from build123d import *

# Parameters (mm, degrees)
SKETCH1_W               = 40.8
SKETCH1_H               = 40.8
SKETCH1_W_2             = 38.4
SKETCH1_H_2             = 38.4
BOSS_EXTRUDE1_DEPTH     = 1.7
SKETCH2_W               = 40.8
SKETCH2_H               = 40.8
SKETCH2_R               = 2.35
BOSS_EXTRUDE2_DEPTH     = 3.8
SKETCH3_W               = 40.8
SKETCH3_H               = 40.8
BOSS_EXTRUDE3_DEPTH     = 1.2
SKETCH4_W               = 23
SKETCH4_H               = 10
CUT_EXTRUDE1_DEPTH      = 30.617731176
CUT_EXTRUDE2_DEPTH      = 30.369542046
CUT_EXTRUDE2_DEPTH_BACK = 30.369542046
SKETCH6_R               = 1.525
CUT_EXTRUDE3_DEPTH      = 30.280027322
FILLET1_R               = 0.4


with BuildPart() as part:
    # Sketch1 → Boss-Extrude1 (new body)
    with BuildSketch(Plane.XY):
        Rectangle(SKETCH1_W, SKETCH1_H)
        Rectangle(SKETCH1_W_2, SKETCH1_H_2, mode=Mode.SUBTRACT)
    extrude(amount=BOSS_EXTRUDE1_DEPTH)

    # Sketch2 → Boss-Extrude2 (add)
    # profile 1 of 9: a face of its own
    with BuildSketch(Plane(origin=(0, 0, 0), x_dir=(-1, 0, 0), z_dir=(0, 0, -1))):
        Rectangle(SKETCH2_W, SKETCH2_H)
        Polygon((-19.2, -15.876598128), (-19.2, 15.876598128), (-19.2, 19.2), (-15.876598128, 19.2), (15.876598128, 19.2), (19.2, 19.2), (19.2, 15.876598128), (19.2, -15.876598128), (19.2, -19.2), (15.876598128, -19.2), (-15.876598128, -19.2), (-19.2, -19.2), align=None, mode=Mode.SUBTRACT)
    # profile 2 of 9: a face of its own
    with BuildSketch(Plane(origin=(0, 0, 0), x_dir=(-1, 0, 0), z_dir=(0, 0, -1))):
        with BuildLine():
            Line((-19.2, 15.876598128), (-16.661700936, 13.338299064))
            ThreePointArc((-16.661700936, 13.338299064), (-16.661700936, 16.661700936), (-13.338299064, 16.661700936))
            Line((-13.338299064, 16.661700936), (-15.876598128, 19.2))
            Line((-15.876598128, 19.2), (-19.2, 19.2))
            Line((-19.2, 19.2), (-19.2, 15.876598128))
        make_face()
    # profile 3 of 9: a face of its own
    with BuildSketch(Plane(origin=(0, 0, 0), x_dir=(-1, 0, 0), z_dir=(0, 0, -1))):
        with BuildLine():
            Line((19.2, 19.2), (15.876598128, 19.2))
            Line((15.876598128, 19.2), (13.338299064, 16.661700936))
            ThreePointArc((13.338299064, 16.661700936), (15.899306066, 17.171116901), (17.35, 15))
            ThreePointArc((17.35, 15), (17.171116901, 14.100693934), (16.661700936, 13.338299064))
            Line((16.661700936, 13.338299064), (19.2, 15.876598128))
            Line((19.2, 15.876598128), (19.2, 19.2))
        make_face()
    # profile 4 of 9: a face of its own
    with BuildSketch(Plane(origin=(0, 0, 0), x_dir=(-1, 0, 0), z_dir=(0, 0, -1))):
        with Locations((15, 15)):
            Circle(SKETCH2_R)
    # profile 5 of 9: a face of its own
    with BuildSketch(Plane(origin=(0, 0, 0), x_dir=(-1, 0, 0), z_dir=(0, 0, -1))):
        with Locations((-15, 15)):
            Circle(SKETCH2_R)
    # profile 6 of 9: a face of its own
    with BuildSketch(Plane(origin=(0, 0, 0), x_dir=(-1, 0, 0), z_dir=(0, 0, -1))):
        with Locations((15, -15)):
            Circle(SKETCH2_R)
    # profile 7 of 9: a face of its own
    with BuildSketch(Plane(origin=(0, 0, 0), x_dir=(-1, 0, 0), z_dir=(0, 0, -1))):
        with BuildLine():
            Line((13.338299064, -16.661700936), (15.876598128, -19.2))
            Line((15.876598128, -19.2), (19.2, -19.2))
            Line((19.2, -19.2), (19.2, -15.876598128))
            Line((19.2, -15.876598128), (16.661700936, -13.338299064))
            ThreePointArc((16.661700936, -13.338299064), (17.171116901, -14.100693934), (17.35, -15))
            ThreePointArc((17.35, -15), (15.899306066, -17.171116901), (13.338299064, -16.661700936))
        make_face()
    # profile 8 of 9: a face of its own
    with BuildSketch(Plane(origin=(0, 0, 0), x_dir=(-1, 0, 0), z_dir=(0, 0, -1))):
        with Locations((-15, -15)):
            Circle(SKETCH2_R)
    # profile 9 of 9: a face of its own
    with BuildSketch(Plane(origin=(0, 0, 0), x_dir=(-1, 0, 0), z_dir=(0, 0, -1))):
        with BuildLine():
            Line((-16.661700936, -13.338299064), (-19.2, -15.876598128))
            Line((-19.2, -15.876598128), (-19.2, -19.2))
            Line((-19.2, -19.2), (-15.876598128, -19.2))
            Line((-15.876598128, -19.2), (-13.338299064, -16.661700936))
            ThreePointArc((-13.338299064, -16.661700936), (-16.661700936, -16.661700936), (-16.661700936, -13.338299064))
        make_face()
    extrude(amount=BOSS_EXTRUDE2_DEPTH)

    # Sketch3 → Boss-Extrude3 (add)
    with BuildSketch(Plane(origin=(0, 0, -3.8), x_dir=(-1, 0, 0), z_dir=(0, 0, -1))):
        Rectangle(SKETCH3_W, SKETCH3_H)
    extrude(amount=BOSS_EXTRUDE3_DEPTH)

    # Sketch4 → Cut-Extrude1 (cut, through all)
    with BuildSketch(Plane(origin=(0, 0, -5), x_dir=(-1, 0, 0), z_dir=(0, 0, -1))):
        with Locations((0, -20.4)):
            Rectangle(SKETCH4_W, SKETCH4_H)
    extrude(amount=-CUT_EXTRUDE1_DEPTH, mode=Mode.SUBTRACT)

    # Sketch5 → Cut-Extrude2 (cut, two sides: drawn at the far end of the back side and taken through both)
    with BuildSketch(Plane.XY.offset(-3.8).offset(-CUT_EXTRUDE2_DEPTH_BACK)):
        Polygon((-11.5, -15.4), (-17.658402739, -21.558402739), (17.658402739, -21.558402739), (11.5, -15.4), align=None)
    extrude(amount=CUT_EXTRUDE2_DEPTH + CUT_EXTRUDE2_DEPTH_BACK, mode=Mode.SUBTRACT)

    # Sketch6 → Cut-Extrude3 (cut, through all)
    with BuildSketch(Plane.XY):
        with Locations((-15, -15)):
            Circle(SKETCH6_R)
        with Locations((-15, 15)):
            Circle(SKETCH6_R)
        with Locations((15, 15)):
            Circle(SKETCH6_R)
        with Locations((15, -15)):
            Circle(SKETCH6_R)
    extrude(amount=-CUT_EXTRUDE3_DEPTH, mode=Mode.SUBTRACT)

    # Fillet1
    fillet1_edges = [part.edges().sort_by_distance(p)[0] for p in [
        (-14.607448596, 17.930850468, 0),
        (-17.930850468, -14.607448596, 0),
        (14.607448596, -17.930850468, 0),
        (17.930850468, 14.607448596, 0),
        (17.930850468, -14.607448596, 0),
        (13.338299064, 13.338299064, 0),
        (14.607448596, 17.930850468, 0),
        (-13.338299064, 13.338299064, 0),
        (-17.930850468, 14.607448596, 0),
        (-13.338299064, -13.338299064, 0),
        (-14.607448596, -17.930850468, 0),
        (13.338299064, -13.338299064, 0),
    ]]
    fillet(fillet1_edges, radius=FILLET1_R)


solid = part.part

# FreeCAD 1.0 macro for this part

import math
import FreeCAD as App
import Part
import Sketcher
from FreeCAD import Vector
Q = App.Units.Quantity


def edges_at(feature, points):
    """Names of the edges that pass closest to the given points."""
    edges = feature.Shape.Edges
    near = lambda p: min(range(len(edges)), key=lambda i: edges[i].distToShape(Part.Vertex(*p))[0])
    return sorted({f"Edge{near(p) + 1}" for p in points})


def add_polygon(sketch, points):
    """Adds a closed chain of lines whose ends are joined by coincident constraints."""
    first, n = sketch.GeometryCount, len(points)
    for a, b in zip(points, points[1:] + points[:1]):
        sketch.addGeometry(Part.LineSegment(App.Vector(*a, 0), App.Vector(*b, 0)), False)
    for i in range(n):
        sketch.addConstraint(Sketcher.Constraint("Coincident", first + i, 2, first + (i + 1) % n, 1))

doc = App.newDocument("Part")
body = doc.addObject("PartDesign::Body", "Body")

# Sketch on XY plane
sketch1 = doc.addObject("Sketcher::SketchObject", "Sketch")
body.addObject(sketch1)
sketch1.AttachmentSupport = (doc.XY_Plane, [""])
sketch1.MapMode = "FlatFace"
add_polygon(sketch1, [(-20.4, 20.4), (-20.4, -20.4), (20.4, -20.4), (20.4, 20.4)])  # lines 0-3
add_polygon(sketch1, [(19.2, -19.2), (-19.2, -19.2), (-19.2, 19.2), (19.2, 19.2)])  # lines 4-7
sketch1.addConstraint(Sketcher.Constraint("Vertical", 0))
sketch1.addConstraint(Sketcher.Constraint("Horizontal", 1))
sketch1.addConstraint(Sketcher.Constraint("Vertical", 2))
sketch1.addConstraint(Sketcher.Constraint("Horizontal", 3))
sketch1.addConstraint(Sketcher.Constraint("Horizontal", 4))
sketch1.addConstraint(Sketcher.Constraint("Vertical", 5))
sketch1.addConstraint(Sketcher.Constraint("Horizontal", 6))
sketch1.addConstraint(Sketcher.Constraint("Vertical", 7))
sketch1.addConstraint(Sketcher.Constraint("Symmetric", 0, 2, 2, 2, -1, 1))
sketch1.addConstraint(Sketcher.Constraint("Symmetric", 4, 2, 6, 2, -1, 1))
sketch1.addConstraint(Sketcher.Constraint("Equal", 3, 0))
sketch1.addConstraint(Sketcher.Constraint("Equal", 6, 5))
sketch1.addConstraint(Sketcher.Constraint("DistanceX", 1, 1, 1, 2, Q("40.8 mm")))
sketch1.addConstraint(Sketcher.Constraint("DistanceX", 4, 2, 4, 1, Q("38.4 mm")))
pad1 = doc.addObject("PartDesign::Pad", "Pad")
body.addObject(pad1)
pad1.Profile = sketch1
pad1.Length = 1.7

# Sketch on XY plane
sketch2 = doc.addObject("Sketcher::SketchObject", "Sketch001")
body.addObject(sketch2)
sketch2.AttachmentSupport = (doc.XY_Plane, [""])
sketch2.MapMode = "FlatFace"
add_polygon(sketch2, [(20.4, 20.4), (20.4, -20.4), (-20.4, -20.4), (-20.4, 20.4)])  # lines 0-3
sketch2.addGeometry(Part.LineSegment(Vector(19.2, -15.876598, 0), Vector(19.2, 15.876598, 0)), False)  # 4
sketch2.addGeometry(Part.LineSegment(Vector(19.2, 15.876598, 0), Vector(16.661701, 13.338299, 0)), False)  # 5
sketch2.addGeometry(Part.ArcOfCircle(Part.Circle(Vector(15, 15, 0), Vector(0, 0, 1), 2.35), math.radians(135), math.radians(315)), False)  # 6
sketch2.addGeometry(Part.LineSegment(Vector(13.338299, 16.661701, 0), Vector(15.876598, 19.2, 0)), False)  # 7
sketch2.addGeometry(Part.LineSegment(Vector(15.876598, 19.2, 0), Vector(-15.876598, 19.2, 0)), False)  # 8
sketch2.addGeometry(Part.LineSegment(Vector(-15.876598, 19.2, 0), Vector(-13.338299, 16.661701, 0)), False)  # 9
sketch2.addGeometry(Part.ArcOfCircle(Part.Circle(Vector(-15, 15, 0), Vector(0, 0, 1), 2.35), math.radians(-135), math.radians(45)), False)  # 10
sketch2.addGeometry(Part.LineSegment(Vector(-16.661701, 13.338299, 0), Vector(-19.2, 15.876598, 0)), False)  # 11
sketch2.addGeometry(Part.LineSegment(Vector(-19.2, 15.876598, 0), Vector(-19.2, -15.876598, 0)), False)  # 12
sketch2.addGeometry(Part.LineSegment(Vector(-19.2, -15.876598, 0), Vector(-16.661701, -13.338299, 0)), False)  # 13
sketch2.addGeometry(Part.ArcOfCircle(Part.Circle(Vector(-15, -15, 0), Vector(0, 0, 1), 2.35), math.radians(-45), math.radians(135)), False)  # 14
sketch2.addGeometry(Part.LineSegment(Vector(-13.338299, -16.661701, 0), Vector(-15.876598, -19.2, 0)), False)  # 15
sketch2.addGeometry(Part.LineSegment(Vector(-15.876598, -19.2, 0), Vector(15.876598, -19.2, 0)), False)  # 16
sketch2.addGeometry(Part.LineSegment(Vector(15.876598, -19.2, 0), Vector(13.338299, -16.661701, 0)), False)  # 17
sketch2.addGeometry(Part.ArcOfCircle(Part.Circle(Vector(15, -15, 0), Vector(0, 0, 1), 2.35), math.radians(45), math.radians(225)), False)  # 18
sketch2.addGeometry(Part.LineSegment(Vector(16.661701, -13.338299, 0), Vector(19.2, -15.876598, 0)), False)  # 19
sketch2.addConstraint(Sketcher.Constraint("Coincident", 4, 2, 5, 1))
sketch2.addConstraint(Sketcher.Constraint("Tangent", 5, 2, 6, 2))
sketch2.addConstraint(Sketcher.Constraint("Tangent", 6, 1, 7, 1))
sketch2.addConstraint(Sketcher.Constraint("Coincident", 7, 2, 8, 1))
sketch2.addConstraint(Sketcher.Constraint("Coincident", 8, 2, 9, 1))
sketch2.addConstraint(Sketcher.Constraint("Tangent", 9, 2, 10, 2))
sketch2.addConstraint(Sketcher.Constraint("Tangent", 10, 1, 11, 1))
sketch2.addConstraint(Sketcher.Constraint("Coincident", 11, 2, 12, 1))
sketch2.addConstraint(Sketcher.Constraint("Coincident", 12, 2, 13, 1))
sketch2.addConstraint(Sketcher.Constraint("Tangent", 13, 2, 14, 2))
sketch2.addConstraint(Sketcher.Constraint("Tangent", 14, 1, 15, 1))
sketch2.addConstraint(Sketcher.Constraint("Coincident", 15, 2, 16, 1))
sketch2.addConstraint(Sketcher.Constraint("Coincident", 16, 2, 17, 1))
sketch2.addConstraint(Sketcher.Constraint("Tangent", 17, 2, 18, 2))
sketch2.addConstraint(Sketcher.Constraint("Tangent", 18, 1, 19, 1))
sketch2.addConstraint(Sketcher.Constraint("Coincident", 19, 2, 4, 1))
sketch2.addConstraint(Sketcher.Constraint("Vertical", 0))
sketch2.addConstraint(Sketcher.Constraint("Horizontal", 1))
sketch2.addConstraint(Sketcher.Constraint("Vertical", 2))
sketch2.addConstraint(Sketcher.Constraint("Horizontal", 3))
sketch2.addConstraint(Sketcher.Constraint("Vertical", 4))
sketch2.addConstraint(Sketcher.Constraint("Horizontal", 8))
sketch2.addConstraint(Sketcher.Constraint("Vertical", 12))
sketch2.addConstraint(Sketcher.Constraint("Horizontal", 16))
sketch2.addConstraint(Sketcher.Constraint("Equal", 6, 10))
sketch2.addConstraint(Sketcher.Constraint("Equal", 10, 14))
sketch2.addConstraint(Sketcher.Constraint("Equal", 14, 18))
sketch2.addConstraint(Sketcher.Constraint("Symmetric", 6, 3, 14, 3, -1, 1))
sketch2.addConstraint(Sketcher.Constraint("Symmetric", 10, 3, 18, 3, -1, 1))
sketch2.addConstraint(Sketcher.Constraint("Symmetric", 0, 2, 2, 2, -1, 1))
sketch2.addConstraint(Sketcher.Constraint("Symmetric", 4, 2, 12, 2, -1, 1))
sketch2.addConstraint(Sketcher.Constraint("Symmetric", 7, 2, 15, 2, -1, 1))
sketch2.addConstraint(Sketcher.Constraint("Symmetric", 6, 3, 10, 3, -2))
sketch2.addConstraint(Sketcher.Constraint("Parallel", 5, 7))
sketch2.addConstraint(Sketcher.Constraint("Perpendicular", 7, 9))
sketch2.addConstraint(Sketcher.Constraint("Parallel", 9, 11))
sketch2.addConstraint(Sketcher.Constraint("Perpendicular", 15, 17))
sketch2.addConstraint(Sketcher.Constraint("Parallel", 17, 19))
sketch2.addConstraint(Sketcher.Constraint("Horizontal", 6, 1, 9, 2))
sketch2.addConstraint(Sketcher.Constraint("Equal", 3, 0))
sketch2.addConstraint(Sketcher.Constraint("Equal", 16, 4))
sketch2.addConstraint(Sketcher.Constraint("Equal", 5, 7))
sketch2.addConstraint(Sketcher.Constraint("Radius", 6, Q("2.35 mm")))
sketch2.addConstraint(Sketcher.Constraint("DistanceX", 1, 2, 1, 1, Q("40.8 mm")))
sketch2.addConstraint(Sketcher.Constraint("DistanceX", -1, 1, 6, 3, Q("15 mm")))
sketch2.addConstraint(Sketcher.Constraint("DistanceX", -1, 1, 4, 2, Q("19.2 mm")))
pad2 = doc.addObject("PartDesign::Pad", "Pad001")
body.addObject(pad2)
pad2.Profile = sketch2
pad2.Length = 3.8
pad2.Reversed = True

# Sketch on XY plane
sketch3 = doc.addObject("Sketcher::SketchObject", "Sketch002")
body.addObject(sketch3)
sketch3.AttachmentSupport = (doc.XY_Plane, [""])
sketch3.MapMode = "FlatFace"
sketch3.AttachmentOffset = App.Placement(Vector(0, 0, -3.8), App.Rotation())
add_polygon(sketch3, [(20.4, 20.4), (20.4, -20.4), (-20.4, -20.4), (-20.4, 20.4)])  # lines 0-3
sketch3.addConstraint(Sketcher.Constraint("Vertical", 0))
sketch3.addConstraint(Sketcher.Constraint("Horizontal", 1))
sketch3.addConstraint(Sketcher.Constraint("Vertical", 2))
sketch3.addConstraint(Sketcher.Constraint("Horizontal", 3))
sketch3.addConstraint(Sketcher.Constraint("Symmetric", 0, 2, 2, 2, -1, 1))
sketch3.addConstraint(Sketcher.Constraint("Equal", 3, 0))
sketch3.addConstraint(Sketcher.Constraint("DistanceX", 1, 2, 1, 1, Q("40.8 mm")))
pad3 = doc.addObject("PartDesign::Pad", "Pad002")
body.addObject(pad3)
pad3.Profile = sketch3
pad3.Length = 1.2
pad3.Reversed = True

# Sketch on XY plane
sketch4 = doc.addObject("Sketcher::SketchObject", "Sketch003")
body.addObject(sketch4)
sketch4.AttachmentSupport = (doc.XY_Plane, [""])
sketch4.MapMode = "FlatFace"
sketch4.AttachmentOffset = App.Placement(Vector(0, 0, -5), App.Rotation())
add_polygon(sketch4, [(11.5, -15.4), (11.5, -25.4), (-11.5, -25.4), (-11.5, -15.4)])  # lines 0-3
sketch4.addConstraint(Sketcher.Constraint("Vertical", 0))
sketch4.addConstraint(Sketcher.Constraint("Horizontal", 1))
sketch4.addConstraint(Sketcher.Constraint("Vertical", 2))
sketch4.addConstraint(Sketcher.Constraint("Horizontal", 3))
sketch4.addConstraint(Sketcher.Constraint("DistanceX", 1, 2, 1, 1, Q("23 mm")))
sketch4.addConstraint(Sketcher.Constraint("DistanceY", 0, 2, 0, 1, Q("10 mm")))
sketch4.addConstraint(Sketcher.Constraint("DistanceX", -1, 1, 0, 2, Q("11.5 mm")))
sketch4.addConstraint(Sketcher.Constraint("DistanceY", 0, 2, -1, 1, Q("25.4 mm")))
pocket1 = doc.addObject("PartDesign::Pocket", "Pocket")
body.addObject(pocket1)
pocket1.Profile = sketch4
pocket1.Type = "ThroughAll"
pocket1.Reversed = True

# Sketch on XY plane
sketch5 = doc.addObject("Sketcher::SketchObject", "Sketch004")
body.addObject(sketch5)
sketch5.AttachmentSupport = (doc.XY_Plane, [""])
sketch5.MapMode = "FlatFace"
sketch5.AttachmentOffset = App.Placement(Vector(0, 0, -3.8), App.Rotation())
add_polygon(sketch5, [(-11.5, -15.4), (-17.658403, -21.558403), (17.658403, -21.558403), (11.5, -15.4)])  # lines 0-3
sketch5.addConstraint(Sketcher.Constraint("Horizontal", 1))
sketch5.addConstraint(Sketcher.Constraint("Horizontal", 3))
sketch5.addConstraint(Sketcher.Constraint("Perpendicular", 0, 2))
sketch5.addConstraint(Sketcher.Constraint("Equal", 0, 2))
sketch5.addConstraint(Sketcher.Constraint("DistanceX", 3, 2, 3, 1, Q("23 mm")))
sketch5.addConstraint(Sketcher.Constraint("DistanceX", -1, 1, 2, 2, Q("11.5 mm")))
sketch5.addConstraint(Sketcher.Constraint("DistanceY", 2, 2, -1, 1, Q("15.4 mm")))
sketch5.addConstraint(Sketcher.Constraint("DistanceX", 1, 1, 1, 2, Q("35.316805 mm")))
pocket2 = doc.addObject("PartDesign::Pocket", "Pocket001")
body.addObject(pocket2)
pocket2.Profile = sketch5
pocket2.Type = "ThroughAll"
pocket2.Midplane = True

# Sketch on XY plane
sketch6 = doc.addObject("Sketcher::SketchObject", "Sketch005")
body.addObject(sketch6)
sketch6.AttachmentSupport = (doc.XY_Plane, [""])
sketch6.MapMode = "FlatFace"
sketch6.addGeometry(Part.Circle(Vector(-15, -15, 0), Vector(0, 0, 1), 1.525), False)
sketch6.addGeometry(Part.Circle(Vector(-15, 15, 0), Vector(0, 0, 1), 1.525), False)
sketch6.addGeometry(Part.Circle(Vector(15, 15, 0), Vector(0, 0, 1), 1.525), False)
sketch6.addGeometry(Part.Circle(Vector(15, -15, 0), Vector(0, 0, 1), 1.525), False)
sketch6.addConstraint(Sketcher.Constraint("Equal", 0, 1))
sketch6.addConstraint(Sketcher.Constraint("Equal", 1, 2))
sketch6.addConstraint(Sketcher.Constraint("Equal", 2, 3))
sketch6.addConstraint(Sketcher.Constraint("Symmetric", 0, 3, 2, 3, -1, 1))
sketch6.addConstraint(Sketcher.Constraint("Symmetric", 1, 3, 3, 3, -1, 1))
sketch6.addConstraint(Sketcher.Constraint("Symmetric", 1, 3, 2, 3, -2))
sketch6.addConstraint(Sketcher.Constraint("Diameter", 0, Q("3.05 mm")))
sketch6.addConstraint(Sketcher.Constraint("DistanceX", 0, 3, -1, 1, Q("15 mm")))
sketch6.addConstraint(Sketcher.Constraint("DistanceY", 0, 3, -1, 1, Q("15 mm")))
pocket3 = doc.addObject("PartDesign::Pocket", "Pocket002")
body.addObject(pocket3)
pocket3.Profile = sketch6
pocket3.Type = "ThroughAll"
doc.recompute()

fillet = doc.addObject("PartDesign::Fillet", "Fillet")
body.addObject(fillet)
fillet.Base = (pocket3, edges_at(pocket3, [
    (-14.607, 17.931, 0),
    (-17.931, -14.607, 0),
    (14.607, -17.931, 0),
    (17.931, 14.607, 0),
    (17.931, -14.607, 0),
    (13.338, 13.338, 0),
    (14.607, 17.931, 0),
    (-13.338, 13.338, 0),
    (-17.931, 14.607, 0),
    (-13.338, -13.338, 0),
    (-14.607, -17.931, 0),
    (13.338, -13.338, 0),
]))
fillet.Radius = 0.4

doc.recompute()
